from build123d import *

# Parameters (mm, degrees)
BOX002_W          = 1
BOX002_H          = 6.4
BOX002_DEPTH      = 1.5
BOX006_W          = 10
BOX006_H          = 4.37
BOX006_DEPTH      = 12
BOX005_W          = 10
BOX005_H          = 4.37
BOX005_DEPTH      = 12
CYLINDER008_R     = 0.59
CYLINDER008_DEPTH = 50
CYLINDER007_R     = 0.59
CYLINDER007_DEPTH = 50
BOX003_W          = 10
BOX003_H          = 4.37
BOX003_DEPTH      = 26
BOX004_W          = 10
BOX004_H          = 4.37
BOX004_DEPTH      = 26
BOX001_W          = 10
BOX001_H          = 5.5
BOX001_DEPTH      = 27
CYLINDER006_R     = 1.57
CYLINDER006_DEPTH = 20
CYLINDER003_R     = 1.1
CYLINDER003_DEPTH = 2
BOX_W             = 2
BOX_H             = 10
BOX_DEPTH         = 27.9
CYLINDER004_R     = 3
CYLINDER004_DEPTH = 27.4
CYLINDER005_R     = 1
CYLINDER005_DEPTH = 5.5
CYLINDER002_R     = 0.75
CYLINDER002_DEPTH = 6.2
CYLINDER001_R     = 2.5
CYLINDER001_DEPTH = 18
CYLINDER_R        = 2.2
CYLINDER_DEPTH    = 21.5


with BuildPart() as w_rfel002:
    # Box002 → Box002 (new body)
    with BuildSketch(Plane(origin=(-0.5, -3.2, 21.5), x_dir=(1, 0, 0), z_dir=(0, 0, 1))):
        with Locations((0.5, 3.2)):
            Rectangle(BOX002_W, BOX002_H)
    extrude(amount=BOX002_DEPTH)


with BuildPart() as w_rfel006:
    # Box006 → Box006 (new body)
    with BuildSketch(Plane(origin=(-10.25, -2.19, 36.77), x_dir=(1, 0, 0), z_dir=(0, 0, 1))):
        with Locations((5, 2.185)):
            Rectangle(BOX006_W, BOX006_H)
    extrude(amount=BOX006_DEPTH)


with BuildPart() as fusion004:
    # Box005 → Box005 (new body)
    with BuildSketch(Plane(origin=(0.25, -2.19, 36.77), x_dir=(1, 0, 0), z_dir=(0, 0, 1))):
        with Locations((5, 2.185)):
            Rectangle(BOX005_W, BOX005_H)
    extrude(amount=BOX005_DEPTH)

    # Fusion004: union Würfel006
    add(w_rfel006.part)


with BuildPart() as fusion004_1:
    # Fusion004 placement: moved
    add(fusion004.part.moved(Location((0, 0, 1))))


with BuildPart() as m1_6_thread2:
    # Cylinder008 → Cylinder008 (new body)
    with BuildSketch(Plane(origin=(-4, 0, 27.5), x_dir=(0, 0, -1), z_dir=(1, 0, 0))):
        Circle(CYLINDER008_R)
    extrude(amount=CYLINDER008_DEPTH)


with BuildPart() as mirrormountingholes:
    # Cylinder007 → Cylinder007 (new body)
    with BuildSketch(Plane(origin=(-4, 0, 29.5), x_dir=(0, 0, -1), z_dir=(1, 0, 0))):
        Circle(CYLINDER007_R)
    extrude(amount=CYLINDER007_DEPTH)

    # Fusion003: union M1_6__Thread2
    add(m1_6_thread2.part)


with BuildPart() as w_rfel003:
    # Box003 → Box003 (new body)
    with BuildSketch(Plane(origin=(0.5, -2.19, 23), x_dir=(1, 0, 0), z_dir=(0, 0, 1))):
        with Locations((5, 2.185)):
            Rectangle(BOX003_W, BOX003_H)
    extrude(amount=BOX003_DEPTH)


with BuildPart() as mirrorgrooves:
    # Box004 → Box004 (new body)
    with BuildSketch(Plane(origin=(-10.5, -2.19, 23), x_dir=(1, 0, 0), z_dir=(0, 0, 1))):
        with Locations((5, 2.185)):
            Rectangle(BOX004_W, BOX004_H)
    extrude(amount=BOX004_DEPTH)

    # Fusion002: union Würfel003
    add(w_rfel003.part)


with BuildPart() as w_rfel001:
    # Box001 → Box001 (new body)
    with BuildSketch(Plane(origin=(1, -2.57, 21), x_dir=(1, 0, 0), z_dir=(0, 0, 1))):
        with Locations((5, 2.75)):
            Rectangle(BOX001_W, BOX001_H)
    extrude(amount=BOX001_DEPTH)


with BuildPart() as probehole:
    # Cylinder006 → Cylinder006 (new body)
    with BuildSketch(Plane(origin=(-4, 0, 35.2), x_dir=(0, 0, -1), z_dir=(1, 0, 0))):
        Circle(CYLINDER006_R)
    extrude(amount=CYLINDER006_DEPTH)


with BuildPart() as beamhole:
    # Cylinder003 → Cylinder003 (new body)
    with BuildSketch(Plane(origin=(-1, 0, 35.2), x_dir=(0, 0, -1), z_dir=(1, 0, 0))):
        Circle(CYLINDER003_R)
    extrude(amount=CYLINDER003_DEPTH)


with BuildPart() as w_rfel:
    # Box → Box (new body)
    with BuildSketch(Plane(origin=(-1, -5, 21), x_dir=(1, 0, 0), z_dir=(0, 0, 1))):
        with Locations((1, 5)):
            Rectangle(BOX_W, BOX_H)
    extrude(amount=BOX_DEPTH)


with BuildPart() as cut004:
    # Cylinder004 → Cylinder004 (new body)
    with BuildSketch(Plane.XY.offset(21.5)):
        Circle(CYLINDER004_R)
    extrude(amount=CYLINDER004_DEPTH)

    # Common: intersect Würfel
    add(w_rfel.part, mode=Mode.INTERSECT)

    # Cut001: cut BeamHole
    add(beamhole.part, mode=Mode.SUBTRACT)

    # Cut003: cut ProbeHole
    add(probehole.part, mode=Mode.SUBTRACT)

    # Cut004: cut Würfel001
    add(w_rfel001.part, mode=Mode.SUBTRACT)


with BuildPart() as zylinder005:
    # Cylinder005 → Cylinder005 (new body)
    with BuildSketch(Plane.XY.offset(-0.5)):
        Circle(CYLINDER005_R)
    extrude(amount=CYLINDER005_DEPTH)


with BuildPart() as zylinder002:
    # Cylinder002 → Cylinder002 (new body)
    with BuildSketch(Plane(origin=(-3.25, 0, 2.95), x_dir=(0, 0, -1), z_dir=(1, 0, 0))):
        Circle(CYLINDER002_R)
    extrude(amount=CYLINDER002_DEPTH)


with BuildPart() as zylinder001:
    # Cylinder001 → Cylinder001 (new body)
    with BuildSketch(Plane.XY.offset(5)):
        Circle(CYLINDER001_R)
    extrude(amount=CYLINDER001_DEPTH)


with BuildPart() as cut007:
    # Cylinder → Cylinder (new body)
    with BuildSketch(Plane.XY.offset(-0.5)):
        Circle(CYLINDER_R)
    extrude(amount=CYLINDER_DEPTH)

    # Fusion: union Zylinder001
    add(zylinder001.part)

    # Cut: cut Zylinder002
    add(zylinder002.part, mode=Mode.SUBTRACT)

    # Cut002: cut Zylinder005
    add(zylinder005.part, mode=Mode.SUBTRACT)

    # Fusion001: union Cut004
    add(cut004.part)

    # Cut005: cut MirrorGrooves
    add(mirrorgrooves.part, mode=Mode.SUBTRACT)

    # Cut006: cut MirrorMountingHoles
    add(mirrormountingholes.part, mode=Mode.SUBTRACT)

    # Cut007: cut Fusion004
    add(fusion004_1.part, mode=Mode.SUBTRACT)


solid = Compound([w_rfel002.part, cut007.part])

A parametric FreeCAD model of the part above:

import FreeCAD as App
import Part
import Sketcher

doc = App.newDocument("Part")
params = doc.addObject("Spreadsheet::Sheet", "Params")
for row, (alias, value) in enumerate([
    ("sketch1_width", "1 mm"),
    ("sketch1_height", "6.4 mm"),
    ("pad1_length", "1.5 mm"),
    ("sketch2_width", "10 mm"),
    ("sketch2_height", "4.37 mm"),
    ("pad2_length", "12 mm"),
    ("sketch3_width", "10 mm"),
    ("sketch3_height", "4.37 mm"),
    ("pad3_length", "12 mm"),
    ("sketch4_diameter", "1.18 mm"),
    ("pad4_length", "50 mm"),
    ("sketch5_diameter", "1.18 mm"),
    ("pad5_length", "50 mm"),
    ("sketch6_width", "10 mm"),
    ("sketch6_height", "4.37 mm"),
    ("pad6_length", "26 mm"),
    ("sketch7_width", "10 mm"),
    ("sketch7_height", "4.37 mm"),
    ("pad7_length", "26 mm"),
    ("sketch8_width", "10 mm"),
    ("sketch8_height", "5.5 mm"),
    ("pad8_length", "27 mm"),
    ("sketch9_diameter", "3.14 mm"),
    ("pad9_length", "20 mm"),
    ("sketch10_diameter", "2.2 mm"),
    ("pad10_length", "2 mm"),
    ("sketch11_width", "2 mm"),
    ("sketch11_height", "10 mm"),
    ("pad11_length", "27.9 mm"),
    ("sketch12_diameter", "6 mm"),
    ("pad12_length", "27.4 mm"),
    ("sketch13_diameter", "2 mm"),
    ("pad13_length", "5.5 mm"),
    ("sketch14_diameter", "1.5 mm"),
    ("pad14_length", "6.2 mm"),
    ("sketch15_diameter", "5 mm"),
    ("pad15_length", "18 mm"),
    ("sketch16_diameter", "4.4 mm"),
    ("pad16_length", "21.5 mm"),
], start=1):
    params.set(f"A{row}", alias)
    params.set(f"B{row}", "=" + value)
    params.setAlias(f"B{row}", alias)

body = doc.addObject("PartDesign::Body", "Body")

sketch1 = body.newObject("Sketcher::SketchObject", "Sketch")
sketch1.AttachmentSupport = (doc.getObject("XY_Plane"), [""])
sketch1.MapMode = "FlatFace"
sketch1.AttachmentOffset = App.Placement(App.Vector(0, 0, 21.5), App.Rotation())
sketch1.addGeometry([
    Part.LineSegment(App.Vector(-0.5, 3.2, 0), App.Vector(-0.5, -3.2, 0)),
    Part.LineSegment(App.Vector(-0.5, -3.2, 0), App.Vector(0.5, -3.2, 0)),
    Part.LineSegment(App.Vector(0.5, -3.2, 0), App.Vector(0.5, 3.2, 0)),
    Part.LineSegment(App.Vector(0.5, 3.2, 0), App.Vector(-0.5, 3.2, 0)),
], False)
sketch1.addConstraint([
    Sketcher.Constraint("Coincident", 0, 2, 1, 1),
    Sketcher.Constraint("Coincident", 1, 2, 2, 1),
    Sketcher.Constraint("Coincident", 2, 2, 3, 1),
    Sketcher.Constraint("Coincident", 3, 2, 0, 1),
    Sketcher.Constraint("Vertical", 0),
    Sketcher.Constraint("Horizontal", 1),
    Sketcher.Constraint("Vertical", 2),
    Sketcher.Constraint("Horizontal", 3),
    Sketcher.Constraint("Symmetric", 0, 2, 2, 2, -1, 1),
    Sketcher.Constraint("DistanceX", 1, 1, 1, 2, 1.0),
    Sketcher.Constraint("DistanceY", 0, 2, 0, 1, 6.4),
])
sketch1.setExpression("Constraints[9]", "Params.sketch1_width")
sketch1.setExpression("Constraints[10]", "Params.sketch1_height")
pad1 = body.newObject("PartDesign::Pad", "Pad")
pad1.Profile = sketch1
pad1.setExpression("Length", "Params.pad1_length")
body2 = doc.addObject("PartDesign::Body", "Body001")

sketch2 = body2.newObject("Sketcher::SketchObject", "Sketch001")
sketch2.AttachmentSupport = (doc.getObject("XY_Plane001"), [""])
sketch2.MapMode = "FlatFace"
sketch2.AttachmentOffset = App.Placement(App.Vector(0, 0, 36.77), App.Rotation())
sketch2.addGeometry([
    Part.LineSegment(App.Vector(-10.2, 2.2, 0), App.Vector(-10.2, -2.2, 0)),
    Part.LineSegment(App.Vector(-10.2, -2.2, 0), App.Vector(-0.2, -2.2, 0)),
    Part.LineSegment(App.Vector(-0.2, -2.2, 0), App.Vector(-0.2, 2.2, 0)),
    Part.LineSegment(App.Vector(-0.2, 2.2, 0), App.Vector(-10.2, 2.2, 0)),
], False)
sketch2.addConstraint([
    Sketcher.Constraint("Coincident", 0, 2, 1, 1),
    Sketcher.Constraint("Coincident", 1, 2, 2, 1),
    Sketcher.Constraint("Coincident", 2, 2, 3, 1),
    Sketcher.Constraint("Coincident", 3, 2, 0, 1),
    Sketcher.Constraint("Vertical", 0),
    Sketcher.Constraint("Horizontal", 1),
    Sketcher.Constraint("Vertical", 2),
    Sketcher.Constraint("Horizontal", 3),
    Sketcher.Constraint("DistanceX", 1, 1, 1, 2, 10.0),
    Sketcher.Constraint("DistanceY", 0, 2, 0, 1, 4.37),
    Sketcher.Constraint("DistanceX", 0, 2, -1, 1, 10.25),
    Sketcher.Constraint("DistanceY", 0, 2, -1, 1, 2.19),
])
sketch2.setExpression("Constraints[8]", "Params.sketch2_width")
sketch2.setExpression("Constraints[9]", "Params.sketch2_height")
pad2 = body2.newObject("PartDesign::Pad", "Pad001")
pad2.Profile = sketch2
pad2.setExpression("Length", "Params.pad2_length")
body3 = doc.addObject("PartDesign::Body", "Body002")
body3.AllowCompound = True

sketch3 = body3.newObject("Sketcher::SketchObject", "Sketch002")
sketch3.AttachmentSupport = (doc.getObject("XY_Plane002"), [""])
sketch3.MapMode = "FlatFace"
sketch3.AttachmentOffset = App.Placement(App.Vector(0, 0, 36.77), App.Rotation())
sketch3.addGeometry([
    Part.LineSegment(App.Vector(0.2, 2.2, 0), App.Vector(0.2, -2.2, 0)),
    Part.LineSegment(App.Vector(0.2, -2.2, 0), App.Vector(10.2, -2.2, 0)),
    Part.LineSegment(App.Vector(10.2, -2.2, 0), App.Vector(10.2, 2.2, 0)),
    Part.LineSegment(App.Vector(10.2, 2.2, 0), App.Vector(0.2, 2.2, 0)),
], False)
sketch3.addConstraint([
    Sketcher.Constraint("Coincident", 0, 2, 1, 1),
    Sketcher.Constraint("Coincident", 1, 2, 2, 1),
    Sketcher.Constraint("Coincident", 2, 2, 3, 1),
    Sketcher.Constraint("Coincident", 3, 2, 0, 1),
    Sketcher.Constraint("Vertical", 0),
    Sketcher.Constraint("Horizontal", 1),
    Sketcher.Constraint("Vertical", 2),
    Sketcher.Constraint("Horizontal", 3),
    Sketcher.Constraint("DistanceX", 1, 1, 1, 2, 10.0),
    Sketcher.Constraint("DistanceY", 0, 2, 0, 1, 4.37),
    Sketcher.Constraint("DistanceX", -1, 1, 0, 2, 0.25),
    Sketcher.Constraint("DistanceY", 0, 2, -1, 1, 2.19),
])
sketch3.setExpression("Constraints[8]", "Params.sketch3_width")
sketch3.setExpression("Constraints[9]", "Params.sketch3_height")
pad3 = body3.newObject("PartDesign::Pad", "Pad002")
pad3.Profile = sketch3
pad3.setExpression("Length", "Params.pad3_length")
doc.recompute()

boolean = body3.newObject("PartDesign::Boolean", "Boolean")
boolean.Type = "Fuse"
boolean.addObjects([body2])
body4 = doc.addObject("PartDesign::Body", "Body003")
body4.AllowCompound = True
doc.recompute()

body3.Placement = App.Placement(App.Vector(0, 0, 1), App.Rotation(App.Vector(0, 0, 1), 0))
boolean2 = body4.newObject("PartDesign::Boolean", "Boolean001")
boolean2.Type = "Fuse"
boolean2.addObjects([body3])
body5 = doc.addObject("PartDesign::Body", "Body004")

sketch4 = body5.newObject("Sketcher::SketchObject", "Sketch003")
sketch4.AttachmentSupport = (doc.getObject("YZ_Plane004"), [""])
sketch4.MapMode = "FlatFace"
sketch4.AttachmentOffset = App.Placement(App.Vector(0, 0, -4), App.Rotation())
sketch4.addGeometry(Part.Circle(App.Vector(0, 27.5, 0), App.Vector(0, 0, 1), 0.6), False)
sketch4.addConstraint([
    Sketcher.Constraint("PointOnObject", 0, 3, -2),
    Sketcher.Constraint("Diameter", 0, 1.18),
    Sketcher.Constraint("DistanceY", -1, 1, 0, 3, 27.5),
])
sketch4.setExpression("Constraints[1]", "Params.sketch4_diameter")
pad4 = body5.newObject("PartDesign::Pad", "Pad003")
pad4.Profile = sketch4
pad4.setExpression("Length", "Params.pad4_length")
body6 = doc.addObject("PartDesign::Body", "Body005")
body6.AllowCompound = True

sketch5 = body6.newObject("Sketcher::SketchObject", "Sketch004")
sketch5.AttachmentSupport = (doc.getObject("YZ_Plane005"), [""])
sketch5.MapMode = "FlatFace"
sketch5.AttachmentOffset = App.Placement(App.Vector(0, 0, -4), App.Rotation())
sketch5.addGeometry(Part.Circle(App.Vector(0, 29.5, 0), App.Vector(0, 0, 1), 0.6), False)
sketch5.addConstraint([
    Sketcher.Constraint("PointOnObject", 0, 3, -2),
    Sketcher.Constraint("Diameter", 0, 1.18),
    Sketcher.Constraint("DistanceY", -1, 1, 0, 3, 29.5),
])
sketch5.setExpression("Constraints[1]", "Params.sketch5_diameter")
pad5 = body6.newObject("PartDesign::Pad", "Pad004")
pad5.Profile = sketch5
pad5.setExpression("Length", "Params.pad5_length")
doc.recompute()

boolean3 = body6.newObject("PartDesign::Boolean", "Boolean002")
boolean3.Type = "Fuse"
boolean3.addObjects([body5])
body7 = doc.addObject("PartDesign::Body", "Body006")

sketch6 = body7.newObject("Sketcher::SketchObject", "Sketch005")
sketch6.AttachmentSupport = (doc.getObject("XY_Plane006"), [""])
sketch6.MapMode = "FlatFace"
sketch6.AttachmentOffset = App.Placement(App.Vector(0, 0, 23), App.Rotation())
sketch6.addGeometry([
    Part.LineSegment(App.Vector(0.5, 2.2, 0), App.Vector(0.5, -2.2, 0)),
    Part.LineSegment(App.Vector(0.5, -2.2, 0), App.Vector(10.5, -2.2, 0)),
    Part.LineSegment(App.Vector(10.5, -2.2, 0), App.Vector(10.5, 2.2, 0)),
    Part.LineSegment(App.Vector(10.5, 2.2, 0), App.Vector(0.5, 2.2, 0)),
], False)
sketch6.addConstraint([
    Sketcher.Constraint("Coincident", 0, 2, 1, 1),
    Sketcher.Constraint("Coincident", 1, 2, 2, 1),
    Sketcher.Constraint("Coincident", 2, 2, 3, 1),
    Sketcher.Constraint("Coincident", 3, 2, 0, 1),
    Sketcher.Constraint("Vertical", 0),
    Sketcher.Constraint("Horizontal", 1),
    Sketcher.Constraint("Vertical", 2),
    Sketcher.Constraint("Horizontal", 3),
    Sketcher.Constraint("DistanceX", 1, 1, 1, 2, 10.0),
    Sketcher.Constraint("DistanceY", 0, 2, 0, 1, 4.37),
    Sketcher.Constraint("DistanceX", -1, 1, 0, 2, 0.5),
    Sketcher.Constraint("DistanceY", 0, 2, -1, 1, 2.19),
])
sketch6.setExpression("Constraints[8]", "Params.sketch6_width")
sketch6.setExpression("Constraints[9]", "Params.sketch6_height")
pad6 = body7.newObject("PartDesign::Pad", "Pad005")
pad6.Profile = sketch6
pad6.setExpression("Length", "Params.pad6_length")
body8 = doc.addObject("PartDesign::Body", "Body007")
body8.AllowCompound = True

sketch7 = body8.newObject("Sketcher::SketchObject", "Sketch006")
sketch7.AttachmentSupport = (doc.getObject("XY_Plane007"), [""])
sketch7.MapMode = "FlatFace"
sketch7.AttachmentOffset = App.Placement(App.Vector(0, 0, 23), App.Rotation())
sketch7.addGeometry([
    Part.LineSegment(App.Vector(-10.5, 2.2, 0), App.Vector(-10.5, -2.2, 0)),
    Part.LineSegment(App.Vector(-10.5, -2.2, 0), App.Vector(-0.5, -2.2, 0)),
    Part.LineSegment(App.Vector(-0.5, -2.2, 0), App.Vector(-0.5, 2.2, 0)),
    Part.LineSegment(App.Vector(-0.5, 2.2, 0), App.Vector(-10.5, 2.2, 0)),
], False)
sketch7.addConstraint([
    Sketcher.Constraint("Coincident", 0, 2, 1, 1),
    Sketcher.Constraint("Coincident", 1, 2, 2, 1),
    Sketcher.Constraint("Coincident", 2, 2, 3, 1),
    Sketcher.Constraint("Coincident", 3, 2, 0, 1),
    Sketcher.Constraint("Vertical", 0),
    Sketcher.Constraint("Horizontal", 1),
    Sketcher.Constraint("Vertical", 2),
    Sketcher.Constraint("Horizontal", 3),
    Sketcher.Constraint("DistanceX", 1, 1, 1, 2, 10.0),
    Sketcher.Constraint("DistanceY", 0, 2, 0, 1, 4.37),
    Sketcher.Constraint("DistanceX", 0, 2, -1, 1, 10.5),
    Sketcher.Constraint("DistanceY", 0, 2, -1, 1, 2.19),
])
sketch7.setExpression("Constraints[8]", "Params.sketch7_width")
sketch7.setExpression("Constraints[9]", "Params.sketch7_height")
pad7 = body8.newObject("PartDesign::Pad", "Pad006")
pad7.Profile = sketch7
pad7.setExpression("Length", "Params.pad7_length")
doc.recompute()

boolean4 = body8.newObject("PartDesign::Boolean", "Boolean003")
boolean4.Type = "Fuse"
boolean4.addObjects([body7])
body9 = doc.addObject("PartDesign::Body", "Body008")

sketch8 = body9.newObject("Sketcher::SketchObject", "Sketch007")
sketch8.AttachmentSupport = (doc.getObject("XY_Plane008"), [""])
sketch8.MapMode = "FlatFace"
sketch8.AttachmentOffset = App.Placement(App.Vector(0, 0, 21), App.Rotation())
sketch8.addGeometry([
    Part.LineSegment(App.Vector(1, 3, 0), App.Vector(1, -3, 0)),
    Part.LineSegment(App.Vector(1, -3, 0), App.Vector(11, -3, 0)),
    Part.LineSegment(App.Vector(11, -3, 0), App.Vector(11, 3, 0)),
    Part.LineSegment(App.Vector(11, 3, 0), App.Vector(1, 3, 0)),
], False)
sketch8.addConstraint([
    Sketcher.Constraint("Coincident", 0, 2, 1, 1),
    Sketcher.Constraint("Coincident", 1, 2, 2, 1),
    Sketcher.Constraint("Coincident", 2, 2, 3, 1),
    Sketcher.Constraint("Coincident", 3, 2, 0, 1),
    Sketcher.Constraint("Vertical", 0),
    Sketcher.Constraint("Horizontal", 1),
    Sketcher.Constraint("Vertical", 2),
    Sketcher.Constraint("Horizontal", 3),
    Sketcher.Constraint("DistanceX", 1, 1, 1, 2, 10.0),
    Sketcher.Constraint("DistanceY", 0, 2, 0, 1, 5.5),
    Sketcher.Constraint("DistanceX", -1, 1, 0, 2, 1.0),
    Sketcher.Constraint("DistanceY", 0, 2, -1, 1, 2.57),
])
sketch8.setExpression("Constraints[8]", "Params.sketch8_width")
sketch8.setExpression("Constraints[9]", "Params.sketch8_height")
pad8 = body9.newObject("PartDesign::Pad", "Pad007")
pad8.Profile = sketch8
pad8.setExpression("Length", "Params.pad8_length")
body10 = doc.addObject("PartDesign::Body", "Body009")

sketch9 = body10.newObject("Sketcher::SketchObject", "Sketch008")
sketch9.AttachmentSupport = (doc.getObject("YZ_Plane009"), [""])
sketch9.MapMode = "FlatFace"
sketch9.AttachmentOffset = App.Placement(App.Vector(0, 0, -4), App.Rotation())
sketch9.addGeometry(Part.Circle(App.Vector(0, 35.2, 0), App.Vector(0, 0, 1), 1.6), False)
sketch9.addConstraint([
    Sketcher.Constraint("PointOnObject", 0, 3, -2),
    Sketcher.Constraint("Diameter", 0, 3.14),
    Sketcher.Constraint("DistanceY", -1, 1, 0, 3, 35.2),
])
sketch9.setExpression("Constraints[1]", "Params.sketch9_diameter")
pad9 = body10.newObject("PartDesign::Pad", "Pad008")
pad9.Profile = sketch9
pad9.setExpression("Length", "Params.pad9_length")
body11 = doc.addObject("PartDesign::Body", "Body010")

sketch10 = body11.newObject("Sketcher::SketchObject", "Sketch009")
sketch10.AttachmentSupport = (doc.getObject("YZ_Plane010"), [""])
sketch10.MapMode = "FlatFace"
sketch10.AttachmentOffset = App.Placement(App.Vector(0, 0, -1), App.Rotation())
sketch10.addGeometry(Part.Circle(App.Vector(0, 35.2, 0), App.Vector(0, 0, 1), 1.1), False)
sketch10.addConstraint([
    Sketcher.Constraint("PointOnObject", 0, 3, -2),
    Sketcher.Constraint("Diameter", 0, 2.2),
    Sketcher.Constraint("DistanceY", -1, 1, 0, 3, 35.2),
])
sketch10.setExpression("Constraints[1]", "Params.sketch10_diameter")
pad10 = body11.newObject("PartDesign::Pad", "Pad009")
pad10.Profile = sketch10
pad10.setExpression("Length", "Params.pad10_length")
body12 = doc.addObject("PartDesign::Body", "Body011")

sketch11 = body12.newObject("Sketcher::SketchObject", "Sketch010")
sketch11.AttachmentSupport = (doc.getObject("XY_Plane011"), [""])
sketch11.MapMode = "FlatFace"
sketch11.AttachmentOffset = App.Placement(App.Vector(0, 0, 21), App.Rotation())
sketch11.addGeometry([
    Part.LineSegment(App.Vector(-1, 5, 0), App.Vector(-1, -5, 0)),
    Part.LineSegment(App.Vector(-1, -5, 0), App.Vector(1, -5, 0)),
    Part.LineSegment(App.Vector(1, -5, 0), App.Vector(1, 5, 0)),
    Part.LineSegment(App.Vector(1, 5, 0), App.Vector(-1, 5, 0)),
], False)
sketch11.addConstraint([
    Sketcher.Constraint("Coincident", 0, 2, 1, 1),
    Sketcher.Constraint("Coincident", 1, 2, 2, 1),
    Sketcher.Constraint("Coincident", 2, 2, 3, 1),
    Sketcher.Constraint("Coincident", 3, 2, 0, 1),
    Sketcher.Constraint("Vertical", 0),
    Sketcher.Constraint("Horizontal", 1),
    Sketcher.Constraint("Vertical", 2),
    Sketcher.Constraint("Horizontal", 3),
    Sketcher.Constraint("Symmetric", 0, 2, 2, 2, -1, 1),
    Sketcher.Constraint("DistanceX", 1, 1, 1, 2, 2.0),
    Sketcher.Constraint("DistanceY", 0, 2, 0, 1, 10.0),
])
sketch11.setExpression("Constraints[9]", "Params.sketch11_width")
sketch11.setExpression("Constraints[10]", "Params.sketch11_height")
pad11 = body12.newObject("PartDesign::Pad", "Pad010")
pad11.Profile = sketch11
pad11.setExpression("Length", "Params.pad11_length")
body13 = doc.addObject("PartDesign::Body", "Body012")

sketch12 = body13.newObject("Sketcher::SketchObject", "Sketch011")
sketch12.AttachmentSupport = (doc.getObject("XY_Plane012"), [""])
sketch12.MapMode = "FlatFace"
sketch12.AttachmentOffset = App.Placement(App.Vector(0, 0, 21.5), App.Rotation())
sketch12.addGeometry(Part.Circle(App.Vector(0, 0, 0), App.Vector(0, 0, 1), 3), False)
sketch12.addConstraint([
    Sketcher.Constraint("Coincident", 0, 3, -1, 1),
    Sketcher.Constraint("Diameter", 0, 6.0),
])
sketch12.setExpression("Constraints[1]", "Params.sketch12_diameter")
pad12 = body13.newObject("PartDesign::Pad", "Pad011")
pad12.Profile = sketch12
pad12.setExpression("Length", "Params.pad12_length")
doc.recompute()

boolean5 = body13.newObject("PartDesign::Boolean", "Boolean004")
boolean5.Type = "Common"
boolean5.addObjects([body12])
doc.recompute()

boolean6 = body13.newObject("PartDesign::Boolean", "Boolean005")
boolean6.Type = "Cut"
boolean6.addObjects([body11])
doc.recompute()

boolean7 = body13.newObject("PartDesign::Boolean", "Boolean006")
boolean7.Type = "Cut"
boolean7.addObjects([body10])
doc.recompute()

boolean8 = body13.newObject("PartDesign::Boolean", "Boolean007")
boolean8.Type = "Cut"
boolean8.addObjects([body9])
body14 = doc.addObject("PartDesign::Body", "Body013")

sketch13 = body14.newObject("Sketcher::SketchObject", "Sketch012")
sketch13.AttachmentSupport = (doc.getObject("XY_Plane013"), [""])
sketch13.MapMode = "FlatFace"
sketch13.AttachmentOffset = App.Placement(App.Vector(0, 0, -0.5), App.Rotation())
sketch13.addGeometry(Part.Circle(App.Vector(0, 0, 0), App.Vector(0, 0, 1), 1), False)
sketch13.addConstraint([
    Sketcher.Constraint("Coincident", 0, 3, -1, 1),
    Sketcher.Constraint("Diameter", 0, 2.0),
])
sketch13.setExpression("Constraints[1]", "Params.sketch13_diameter")
pad13 = body14.newObject("PartDesign::Pad", "Pad012")
pad13.Profile = sketch13
pad13.setExpression("Length", "Params.pad13_length")
body15 = doc.addObject("PartDesign::Body", "Body014")

sketch14 = body15.newObject("Sketcher::SketchObject", "Sketch013")
sketch14.AttachmentSupport = (doc.getObject("YZ_Plane014"), [""])
sketch14.MapMode = "FlatFace"
sketch14.AttachmentOffset = App.Placement(App.Vector(0, 0, -3.25), App.Rotation())
sketch14.addGeometry(Part.Circle(App.Vector(0, 3, 0), App.Vector(0, 0, 1), 0.8), False)
sketch14.addConstraint([
    Sketcher.Constraint("PointOnObject", 0, 3, -2),
    Sketcher.Constraint("Diameter", 0, 1.5),
    Sketcher.Constraint("DistanceY", -1, 1, 0, 3, 2.95),
])
sketch14.setExpression("Constraints[1]", "Params.sketch14_diameter")
pad14 = body15.newObject("PartDesign::Pad", "Pad013")
pad14.Profile = sketch14
pad14.setExpression("Length", "Params.pad14_length")
body16 = doc.addObject("PartDesign::Body", "Body015")

sketch15 = body16.newObject("Sketcher::SketchObject", "Sketch014")
sketch15.AttachmentSupport = (doc.getObject("XY_Plane015"), [""])
sketch15.MapMode = "FlatFace"
sketch15.AttachmentOffset = App.Placement(App.Vector(0, 0, 5), App.Rotation())
sketch15.addGeometry(Part.Circle(App.Vector(0, 0, 0), App.Vector(0, 0, 1), 2.5), False)
sketch15.addConstraint([
    Sketcher.Constraint("Coincident", 0, 3, -1, 1),
    Sketcher.Constraint("Diameter", 0, 5.0),
])
sketch15.setExpression("Constraints[1]", "Params.sketch15_diameter")
pad15 = body16.newObject("PartDesign::Pad", "Pad014")
pad15.Profile = sketch15
pad15.setExpression("Length", "Params.pad15_length")
body17 = doc.addObject("PartDesign::Body", "Body016")

sketch16 = body17.newObject("Sketcher::SketchObject", "Sketch015")
sketch16.AttachmentSupport = (doc.getObject("XY_Plane016"), [""])
sketch16.MapMode = "FlatFace"
sketch16.AttachmentOffset = App.Placement(App.Vector(0, 0, -0.5), App.Rotation())
sketch16.addGeometry(Part.Circle(App.Vector(0, 0, 0), App.Vector(0, 0, 1), 2.2), False)
sketch16.addConstraint([
    Sketcher.Constraint("Coincident", 0, 3, -1, 1),
    Sketcher.Constraint("Diameter", 0, 4.4),
])
sketch16.setExpression("Constraints[1]", "Params.sketch16_diameter")
pad16 = body17.newObject("PartDesign::Pad", "Pad015")
pad16.Profile = sketch16
pad16.setExpression("Length", "Params.pad16_length")
doc.recompute()

boolean9 = body17.newObject("PartDesign::Boolean", "Boolean008")
boolean9.Type = "Fuse"
boolean9.addObjects([body16])
doc.recompute()

boolean10 = body17.newObject("PartDesign::Boolean", "Boolean009")
boolean10.Type = "Cut"
boolean10.addObjects([body15])
doc.recompute()

boolean11 = body17.newObject("PartDesign::Boolean", "Boolean010")
boolean11.Type = "Cut"
boolean11.addObjects([body14])
doc.recompute()

boolean12 = body17.newObject("PartDesign::Boolean", "Boolean011")
boolean12.Type = "Fuse"
boolean12.addObjects([body13])
doc.recompute()

boolean13 = body17.newObject("PartDesign::Boolean", "Boolean012")
boolean13.Type = "Cut"
boolean13.addObjects([body8])
doc.recompute()

boolean14 = body17.newObject("PartDesign::Boolean", "Boolean013")
boolean14.Type = "Cut"
boolean14.addObjects([body6])
doc.recompute()

boolean15 = body17.newObject("PartDesign::Boolean", "Boolean014")
boolean15.Type = "Cut"
boolean15.addObjects([body4])

doc.recompute()
